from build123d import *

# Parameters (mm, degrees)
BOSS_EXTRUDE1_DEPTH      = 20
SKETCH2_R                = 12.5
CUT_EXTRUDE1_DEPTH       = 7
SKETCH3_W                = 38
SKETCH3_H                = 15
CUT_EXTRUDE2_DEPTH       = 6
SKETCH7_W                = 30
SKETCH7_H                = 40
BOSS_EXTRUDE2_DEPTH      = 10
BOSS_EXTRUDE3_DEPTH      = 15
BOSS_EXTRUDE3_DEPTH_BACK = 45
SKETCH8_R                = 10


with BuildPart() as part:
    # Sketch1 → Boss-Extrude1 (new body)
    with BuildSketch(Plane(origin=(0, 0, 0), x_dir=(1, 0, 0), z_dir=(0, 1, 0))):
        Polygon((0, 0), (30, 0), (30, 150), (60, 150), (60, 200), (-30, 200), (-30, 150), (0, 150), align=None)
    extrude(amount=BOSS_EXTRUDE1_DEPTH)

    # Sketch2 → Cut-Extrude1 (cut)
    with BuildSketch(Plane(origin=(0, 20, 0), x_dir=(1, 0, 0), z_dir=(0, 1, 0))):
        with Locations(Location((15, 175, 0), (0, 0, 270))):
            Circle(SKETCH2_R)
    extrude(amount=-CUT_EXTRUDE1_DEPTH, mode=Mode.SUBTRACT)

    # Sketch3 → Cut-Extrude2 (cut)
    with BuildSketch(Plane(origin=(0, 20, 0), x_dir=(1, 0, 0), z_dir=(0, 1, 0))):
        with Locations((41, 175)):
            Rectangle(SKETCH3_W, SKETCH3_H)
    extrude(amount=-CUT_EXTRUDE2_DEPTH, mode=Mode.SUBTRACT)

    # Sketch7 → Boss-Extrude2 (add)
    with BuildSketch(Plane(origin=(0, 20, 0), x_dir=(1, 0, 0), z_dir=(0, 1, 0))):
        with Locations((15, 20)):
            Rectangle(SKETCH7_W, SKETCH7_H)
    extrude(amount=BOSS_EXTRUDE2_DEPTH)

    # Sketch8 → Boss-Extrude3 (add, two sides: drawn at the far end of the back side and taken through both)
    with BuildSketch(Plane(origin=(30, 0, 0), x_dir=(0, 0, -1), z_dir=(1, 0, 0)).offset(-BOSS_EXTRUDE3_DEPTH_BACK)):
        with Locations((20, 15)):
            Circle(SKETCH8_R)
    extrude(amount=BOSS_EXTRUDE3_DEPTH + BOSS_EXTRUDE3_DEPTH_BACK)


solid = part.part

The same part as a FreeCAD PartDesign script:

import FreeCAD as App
import Part
import Sketcher
from FreeCAD import Vector

doc = App.newDocument("Part")
body = doc.addObject("PartDesign::Body", "Body")

sketch1 = body.newObject("Sketcher::SketchObject", "Sketch")
sketch1.AttachmentSupport = (doc.getObject("XZ_Plane"), [""])
sketch1.MapMode = "FlatFace"
sketch1.addGeometry([
    Part.LineSegment(Vector(0, 0, 0), Vector(30, 0, 0)),
    Part.LineSegment(Vector(30, 0, 0), Vector(30, -150, 0)),
    Part.LineSegment(Vector(30, -150, 0), Vector(60, -150, 0)),
    Part.LineSegment(Vector(60, -150, 0), Vector(60, -200, 0)),
    Part.LineSegment(Vector(60, -200, 0), Vector(-30, -200, 0)),
    Part.LineSegment(Vector(-30, -200, 0), Vector(-30, -150, 0)),
    Part.LineSegment(Vector(-30, -150, 0), Vector(0, -150, 0)),
    Part.LineSegment(Vector(0, -150, 0), Vector(0, 0, 0)),
], False)
sketch1.addConstraint([
    Sketcher.Constraint("Coincident", 0, 2, 1, 1),
    Sketcher.Constraint("Coincident", 1, 2, 2, 1),
    Sketcher.Constraint("Coincident", 2, 2, 3, 1),
    Sketcher.Constraint("Coincident", 3, 2, 4, 1),
    Sketcher.Constraint("Coincident", 4, 2, 5, 1),
    Sketcher.Constraint("Coincident", 5, 2, 6, 1),
    Sketcher.Constraint("Coincident", 6, 2, 7, 1),
    Sketcher.Constraint("Coincident", 7, 2, 0, 1),
    Sketcher.Constraint("Horizontal", 0),
    Sketcher.Constraint("Vertical", 1),
    Sketcher.Constraint("Horizontal", 2),
    Sketcher.Constraint("Vertical", 3),
    Sketcher.Constraint("Horizontal", 4),
    Sketcher.Constraint("Vertical", 5),
    Sketcher.Constraint("Horizontal", 6),
    Sketcher.Constraint("Vertical", 7),
    Sketcher.Constraint("Coincident", 7, 2, -1, 1),
    Sketcher.Constraint("Symmetric", 1, 2, 5, 2, -2),
    Sketcher.Constraint("Equal", 0, 2),
    Sketcher.Constraint("DistanceX", 0, 1, 0, 2, 30.0),
    Sketcher.Constraint("DistanceY", 1, 2, 1, 1, 150.0),
    Sketcher.Constraint("DistanceY", 3, 2, 3, 1, 50.0),
])
pad1 = body.newObject("PartDesign::Pad", "Pad")
pad1.Profile = sketch1
pad1.Length = 20
pad1.Reversed = True

sketch2 = body.newObject("Sketcher::SketchObject", "Sketch001")
sketch2.AttachmentSupport = (doc.getObject("XZ_Plane"), [""])
sketch2.MapMode = "FlatFace"
sketch2.AttachmentOffset = App.Placement(Vector(0, 0, -20), App.Rotation())
sketch2.addGeometry(Part.Circle(Vector(15, -175, 0), Vector(0, 0, 1), 12.5), False)
sketch2.addConstraint([
    Sketcher.Constraint("Diameter", 0, 25.0),
    Sketcher.Constraint("DistanceX", -1, 1, 0, 3, 15.0),
    Sketcher.Constraint("DistanceY", 0, 3, -1, 1, 175.0),
])
pocket1 = body.newObject("PartDesign::Pocket", "Pocket")
pocket1.Profile = sketch2
pocket1.Length = 7
pocket1.Reversed = True

sketch3 = body.newObject("Sketcher::SketchObject", "Sketch002")
sketch3.AttachmentSupport = (doc.getObject("XZ_Plane"), [""])
sketch3.MapMode = "FlatFace"
sketch3.AttachmentOffset = App.Placement(Vector(0, 0, -20), App.Rotation())
sketch3.addGeometry([
    Part.LineSegment(Vector(22, -182.5, 0), Vector(22, -167.5, 0)),
    Part.LineSegment(Vector(22, -167.5, 0), Vector(60, -167.5, 0)),
    Part.LineSegment(Vector(60, -167.5, 0), Vector(60, -182.5, 0)),
    Part.LineSegment(Vector(60, -182.5, 0), Vector(22, -182.5, 0)),
], False)
sketch3.addConstraint([
    Sketcher.Constraint("Coincident", 0, 2, 1, 1),
    Sketcher.Constraint("Coincident", 1, 2, 2, 1),
    Sketcher.Constraint("Coincident", 2, 2, 3, 1),
    Sketcher.Constraint("Coincident", 3, 2, 0, 1),
    Sketcher.Constraint("Vertical", 0),
    Sketcher.Constraint("Horizontal", 1),
    Sketcher.Constraint("Vertical", 2),
    Sketcher.Constraint("Horizontal", 3),
    Sketcher.Constraint("DistanceX", 1, 1, 1, 2, 38.0),
    Sketcher.Constraint("DistanceY", 0, 1, 0, 2, 15.0),
    Sketcher.Constraint("DistanceX", -1, 1, 0, 2, 22.0),
    Sketcher.Constraint("DistanceY", 0, 2, -1, 1, 167.5),
])
pocket2 = body.newObject("PartDesign::Pocket", "Pocket001")
pocket2.Profile = sketch3
pocket2.Length = 6
pocket2.Reversed = True

sketch4 = body.newObject("Sketcher::SketchObject", "Sketch003")
sketch4.AttachmentSupport = (doc.getObject("XZ_Plane"), [""])
sketch4.MapMode = "FlatFace"
sketch4.AttachmentOffset = App.Placement(Vector(0, 0, -20), App.Rotation())
sketch4.addGeometry([
    Part.LineSegment(Vector(0, -40, 0), Vector(0, 0, 0)),
    Part.LineSegment(Vector(0, 0, 0), Vector(30, 0, 0)),
    Part.LineSegment(Vector(30, 0, 0), Vector(30, -40, 0)),
    Part.LineSegment(Vector(30, -40, 0), Vector(0, -40, 0)),
], False)
sketch4.addConstraint([
    Sketcher.Constraint("Coincident", 0, 2, 1, 1),
    Sketcher.Constraint("Coincident", 1, 2, 2, 1),
    Sketcher.Constraint("Coincident", 2, 2, 3, 1),
    Sketcher.Constraint("Coincident", 3, 2, 0, 1),
    Sketcher.Constraint("Vertical", 0),
    Sketcher.Constraint("Horizontal", 1),
    Sketcher.Constraint("Vertical", 2),
    Sketcher.Constraint("Horizontal", 3),
    Sketcher.Constraint("Coincident", 0, 2, -1, 1),
    Sketcher.Constraint("DistanceX", 1, 1, 1, 2, 30.0),
    Sketcher.Constraint("DistanceY", 0, 1, 0, 2, 40.0),
])
pad2 = body.newObject("PartDesign::Pad", "Pad001")
pad2.Profile = sketch4
pad2.Length = 10
pad2.Reversed = True

sketch5 = body.newObject("Sketcher::SketchObject", "Sketch004")
sketch5.AttachmentSupport = (doc.getObject("YZ_Plane"), [""])
sketch5.MapMode = "FlatFace"
sketch5.AttachmentOffset = App.Placement(Vector(0, 0, 30), App.Rotation())
sketch5.addGeometry(Part.Circle(Vector(15, -20, 0), Vector(0, 0, 1), 10), False)
sketch5.addConstraint([
    Sketcher.Constraint("Diameter", 0, 20.0),
    Sketcher.Constraint("DistanceX", -1, 1, 0, 3, 15.0),
    Sketcher.Constraint("DistanceY", 0, 3, -1, 1, 20.0),
])
pad3 = body.newObject("PartDesign::Pad", "Pad002")
pad3.Profile = sketch5
pad3.Type = "TwoLengths"
pad3.Length = 15
pad3.Length2 = 45

doc.recompute()
